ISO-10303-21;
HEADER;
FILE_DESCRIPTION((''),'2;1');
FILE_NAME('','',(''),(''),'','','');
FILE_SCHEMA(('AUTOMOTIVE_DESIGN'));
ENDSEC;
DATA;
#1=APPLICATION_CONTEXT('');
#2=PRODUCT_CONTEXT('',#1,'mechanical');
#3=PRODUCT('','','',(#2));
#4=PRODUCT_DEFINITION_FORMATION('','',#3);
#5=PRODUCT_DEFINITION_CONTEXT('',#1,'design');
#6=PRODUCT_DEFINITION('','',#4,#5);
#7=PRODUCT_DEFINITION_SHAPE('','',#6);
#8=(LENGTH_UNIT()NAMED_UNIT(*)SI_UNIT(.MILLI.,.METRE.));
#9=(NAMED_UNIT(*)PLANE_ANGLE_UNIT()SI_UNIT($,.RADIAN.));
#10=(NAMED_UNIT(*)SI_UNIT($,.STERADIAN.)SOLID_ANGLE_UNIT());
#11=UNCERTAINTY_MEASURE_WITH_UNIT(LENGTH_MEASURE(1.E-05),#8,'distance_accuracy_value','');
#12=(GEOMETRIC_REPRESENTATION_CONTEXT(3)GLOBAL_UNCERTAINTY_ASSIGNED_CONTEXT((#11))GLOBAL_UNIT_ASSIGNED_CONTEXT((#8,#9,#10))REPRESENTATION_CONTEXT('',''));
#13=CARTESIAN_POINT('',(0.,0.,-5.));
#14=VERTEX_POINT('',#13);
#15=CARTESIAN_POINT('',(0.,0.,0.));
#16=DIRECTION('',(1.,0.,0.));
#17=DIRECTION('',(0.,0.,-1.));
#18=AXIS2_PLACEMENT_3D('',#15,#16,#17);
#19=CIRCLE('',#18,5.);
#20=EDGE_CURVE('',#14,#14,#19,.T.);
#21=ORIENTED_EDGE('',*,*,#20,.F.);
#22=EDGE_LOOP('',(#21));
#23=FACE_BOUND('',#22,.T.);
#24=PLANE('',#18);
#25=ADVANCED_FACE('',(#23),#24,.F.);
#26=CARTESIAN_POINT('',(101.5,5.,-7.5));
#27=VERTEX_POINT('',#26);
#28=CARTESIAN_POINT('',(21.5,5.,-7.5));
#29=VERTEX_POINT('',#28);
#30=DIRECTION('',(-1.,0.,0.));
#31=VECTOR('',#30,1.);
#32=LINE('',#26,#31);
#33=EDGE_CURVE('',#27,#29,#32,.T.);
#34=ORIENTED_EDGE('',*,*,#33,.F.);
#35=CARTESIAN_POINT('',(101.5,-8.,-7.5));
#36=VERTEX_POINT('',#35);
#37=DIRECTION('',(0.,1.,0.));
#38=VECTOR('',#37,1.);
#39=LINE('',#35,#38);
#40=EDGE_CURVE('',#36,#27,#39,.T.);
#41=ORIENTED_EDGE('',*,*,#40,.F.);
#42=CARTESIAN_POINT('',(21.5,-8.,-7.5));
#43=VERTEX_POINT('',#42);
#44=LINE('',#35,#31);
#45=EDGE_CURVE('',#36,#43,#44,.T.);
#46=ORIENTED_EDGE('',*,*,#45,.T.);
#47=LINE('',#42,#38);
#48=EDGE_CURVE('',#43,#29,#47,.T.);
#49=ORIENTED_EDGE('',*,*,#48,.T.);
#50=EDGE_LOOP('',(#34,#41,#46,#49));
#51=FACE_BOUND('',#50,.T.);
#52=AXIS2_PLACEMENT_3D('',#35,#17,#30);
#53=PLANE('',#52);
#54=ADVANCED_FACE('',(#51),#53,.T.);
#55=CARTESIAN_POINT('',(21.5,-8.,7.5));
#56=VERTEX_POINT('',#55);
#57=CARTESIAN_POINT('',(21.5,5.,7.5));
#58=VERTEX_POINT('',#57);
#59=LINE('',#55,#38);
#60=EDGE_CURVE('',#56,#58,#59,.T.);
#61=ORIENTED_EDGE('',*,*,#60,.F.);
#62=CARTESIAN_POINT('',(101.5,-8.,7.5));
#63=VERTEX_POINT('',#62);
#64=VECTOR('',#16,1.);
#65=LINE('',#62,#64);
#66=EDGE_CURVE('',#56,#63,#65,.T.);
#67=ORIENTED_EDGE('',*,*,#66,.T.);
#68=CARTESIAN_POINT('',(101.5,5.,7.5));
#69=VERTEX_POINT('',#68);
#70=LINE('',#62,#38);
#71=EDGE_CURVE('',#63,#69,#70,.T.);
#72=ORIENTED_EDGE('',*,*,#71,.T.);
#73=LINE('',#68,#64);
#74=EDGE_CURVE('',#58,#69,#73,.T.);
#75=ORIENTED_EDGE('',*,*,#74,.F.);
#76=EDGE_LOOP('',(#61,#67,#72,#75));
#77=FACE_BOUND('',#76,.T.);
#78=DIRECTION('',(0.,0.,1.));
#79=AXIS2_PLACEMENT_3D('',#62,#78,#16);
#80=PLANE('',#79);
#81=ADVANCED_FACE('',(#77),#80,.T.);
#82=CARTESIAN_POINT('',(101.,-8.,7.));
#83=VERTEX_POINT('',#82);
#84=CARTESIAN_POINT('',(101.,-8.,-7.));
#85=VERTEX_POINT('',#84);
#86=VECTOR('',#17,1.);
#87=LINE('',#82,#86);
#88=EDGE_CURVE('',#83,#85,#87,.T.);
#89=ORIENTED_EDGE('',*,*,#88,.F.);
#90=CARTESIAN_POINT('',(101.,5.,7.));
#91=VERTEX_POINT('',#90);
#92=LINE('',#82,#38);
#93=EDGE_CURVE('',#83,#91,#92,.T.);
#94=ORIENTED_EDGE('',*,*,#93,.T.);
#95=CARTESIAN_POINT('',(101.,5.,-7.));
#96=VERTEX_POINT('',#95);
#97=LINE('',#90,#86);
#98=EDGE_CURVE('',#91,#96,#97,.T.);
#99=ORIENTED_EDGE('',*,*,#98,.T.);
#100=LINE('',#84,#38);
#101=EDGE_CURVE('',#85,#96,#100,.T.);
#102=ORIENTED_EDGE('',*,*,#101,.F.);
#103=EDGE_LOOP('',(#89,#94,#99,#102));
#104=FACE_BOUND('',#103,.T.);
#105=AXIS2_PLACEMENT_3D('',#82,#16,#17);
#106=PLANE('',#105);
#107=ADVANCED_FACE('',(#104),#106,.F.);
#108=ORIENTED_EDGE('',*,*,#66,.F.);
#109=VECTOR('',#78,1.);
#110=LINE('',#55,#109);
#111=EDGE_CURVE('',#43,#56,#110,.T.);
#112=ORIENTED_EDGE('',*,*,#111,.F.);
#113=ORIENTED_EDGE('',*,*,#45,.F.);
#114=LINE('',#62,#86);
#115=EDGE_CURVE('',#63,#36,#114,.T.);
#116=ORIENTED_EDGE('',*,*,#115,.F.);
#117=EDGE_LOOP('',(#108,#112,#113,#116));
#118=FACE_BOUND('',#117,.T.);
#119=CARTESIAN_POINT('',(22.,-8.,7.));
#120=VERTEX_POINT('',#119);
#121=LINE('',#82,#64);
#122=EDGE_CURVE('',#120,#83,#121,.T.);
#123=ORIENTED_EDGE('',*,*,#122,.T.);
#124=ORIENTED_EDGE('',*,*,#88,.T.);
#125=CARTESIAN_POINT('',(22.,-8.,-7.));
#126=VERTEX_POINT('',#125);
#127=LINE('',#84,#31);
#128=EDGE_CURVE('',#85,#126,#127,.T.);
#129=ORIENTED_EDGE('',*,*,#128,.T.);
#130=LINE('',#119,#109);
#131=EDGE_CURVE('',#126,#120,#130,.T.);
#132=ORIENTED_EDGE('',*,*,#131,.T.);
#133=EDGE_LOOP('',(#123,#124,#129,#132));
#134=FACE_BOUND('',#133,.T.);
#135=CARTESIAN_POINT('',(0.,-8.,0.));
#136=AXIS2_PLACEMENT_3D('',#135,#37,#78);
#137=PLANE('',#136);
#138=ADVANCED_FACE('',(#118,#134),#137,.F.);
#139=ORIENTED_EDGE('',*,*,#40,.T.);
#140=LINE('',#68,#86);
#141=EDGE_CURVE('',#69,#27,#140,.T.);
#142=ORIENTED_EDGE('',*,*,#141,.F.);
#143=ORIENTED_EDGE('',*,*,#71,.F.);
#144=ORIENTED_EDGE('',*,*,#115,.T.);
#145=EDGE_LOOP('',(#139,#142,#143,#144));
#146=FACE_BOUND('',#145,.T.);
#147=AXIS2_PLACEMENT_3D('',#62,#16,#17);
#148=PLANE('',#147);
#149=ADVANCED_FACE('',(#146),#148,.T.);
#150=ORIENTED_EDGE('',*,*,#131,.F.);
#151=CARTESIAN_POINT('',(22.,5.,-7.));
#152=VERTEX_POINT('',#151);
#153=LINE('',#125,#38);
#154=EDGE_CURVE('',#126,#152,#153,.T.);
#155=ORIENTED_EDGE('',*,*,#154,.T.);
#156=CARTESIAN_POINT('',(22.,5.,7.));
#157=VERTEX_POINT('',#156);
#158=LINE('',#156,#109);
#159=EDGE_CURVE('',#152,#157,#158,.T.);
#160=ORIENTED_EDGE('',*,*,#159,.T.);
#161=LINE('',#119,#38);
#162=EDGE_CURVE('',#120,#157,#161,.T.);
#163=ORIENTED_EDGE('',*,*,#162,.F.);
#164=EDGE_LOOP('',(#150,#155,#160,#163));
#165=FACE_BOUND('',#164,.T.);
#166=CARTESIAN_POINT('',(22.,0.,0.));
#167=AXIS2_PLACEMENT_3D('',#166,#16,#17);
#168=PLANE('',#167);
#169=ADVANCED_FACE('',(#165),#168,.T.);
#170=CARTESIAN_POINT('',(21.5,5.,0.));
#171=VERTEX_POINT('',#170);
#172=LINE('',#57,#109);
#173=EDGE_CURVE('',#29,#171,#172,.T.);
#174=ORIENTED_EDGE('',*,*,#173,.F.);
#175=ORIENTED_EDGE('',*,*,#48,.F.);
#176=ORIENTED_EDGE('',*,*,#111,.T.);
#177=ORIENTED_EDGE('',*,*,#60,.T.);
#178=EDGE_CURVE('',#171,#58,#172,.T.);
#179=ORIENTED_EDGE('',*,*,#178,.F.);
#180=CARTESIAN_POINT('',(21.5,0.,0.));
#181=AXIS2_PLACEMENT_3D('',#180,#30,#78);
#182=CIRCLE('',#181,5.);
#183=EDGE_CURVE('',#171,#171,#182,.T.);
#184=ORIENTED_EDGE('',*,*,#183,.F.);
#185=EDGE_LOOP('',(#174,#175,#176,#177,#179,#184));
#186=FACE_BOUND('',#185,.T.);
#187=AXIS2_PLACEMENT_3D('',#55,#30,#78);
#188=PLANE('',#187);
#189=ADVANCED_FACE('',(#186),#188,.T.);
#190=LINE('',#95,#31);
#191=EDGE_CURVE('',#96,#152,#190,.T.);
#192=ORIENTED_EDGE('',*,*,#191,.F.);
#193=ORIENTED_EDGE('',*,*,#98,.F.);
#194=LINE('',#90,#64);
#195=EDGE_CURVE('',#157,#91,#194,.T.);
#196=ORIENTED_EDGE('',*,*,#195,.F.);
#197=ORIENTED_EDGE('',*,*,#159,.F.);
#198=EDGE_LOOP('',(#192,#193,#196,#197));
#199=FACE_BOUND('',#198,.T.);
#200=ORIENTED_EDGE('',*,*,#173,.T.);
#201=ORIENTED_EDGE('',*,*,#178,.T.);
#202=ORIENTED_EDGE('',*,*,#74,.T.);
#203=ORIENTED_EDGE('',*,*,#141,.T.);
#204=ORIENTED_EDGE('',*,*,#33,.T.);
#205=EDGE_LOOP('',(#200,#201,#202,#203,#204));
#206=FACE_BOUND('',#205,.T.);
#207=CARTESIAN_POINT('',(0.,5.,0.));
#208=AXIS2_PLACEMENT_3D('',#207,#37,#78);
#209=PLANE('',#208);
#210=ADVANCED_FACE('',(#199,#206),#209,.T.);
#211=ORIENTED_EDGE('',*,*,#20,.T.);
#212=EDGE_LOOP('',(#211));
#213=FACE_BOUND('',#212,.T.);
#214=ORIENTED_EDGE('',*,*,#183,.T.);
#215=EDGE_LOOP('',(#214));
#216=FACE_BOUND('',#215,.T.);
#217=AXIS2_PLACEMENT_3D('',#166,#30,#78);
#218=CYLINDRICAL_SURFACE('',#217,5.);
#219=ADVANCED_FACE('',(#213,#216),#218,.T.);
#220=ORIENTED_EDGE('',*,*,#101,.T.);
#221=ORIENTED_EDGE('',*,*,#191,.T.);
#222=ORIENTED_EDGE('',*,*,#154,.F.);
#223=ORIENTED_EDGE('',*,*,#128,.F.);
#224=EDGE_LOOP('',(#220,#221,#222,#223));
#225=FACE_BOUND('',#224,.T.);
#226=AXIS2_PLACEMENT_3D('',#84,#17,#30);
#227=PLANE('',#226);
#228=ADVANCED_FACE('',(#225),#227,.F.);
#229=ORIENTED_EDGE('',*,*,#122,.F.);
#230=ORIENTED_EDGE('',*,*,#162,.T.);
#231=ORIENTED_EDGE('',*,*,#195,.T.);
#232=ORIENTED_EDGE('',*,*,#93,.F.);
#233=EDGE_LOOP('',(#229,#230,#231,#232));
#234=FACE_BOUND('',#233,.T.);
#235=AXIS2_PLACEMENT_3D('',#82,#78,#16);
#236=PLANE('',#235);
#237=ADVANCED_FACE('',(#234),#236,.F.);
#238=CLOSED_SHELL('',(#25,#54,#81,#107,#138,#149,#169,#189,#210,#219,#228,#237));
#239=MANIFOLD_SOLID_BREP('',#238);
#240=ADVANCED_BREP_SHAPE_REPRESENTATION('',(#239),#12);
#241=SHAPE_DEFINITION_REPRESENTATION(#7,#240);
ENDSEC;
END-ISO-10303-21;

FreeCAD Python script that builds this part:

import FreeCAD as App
import Part
import Sketcher
from FreeCAD import Vector


def add_polygon(sketch, points):
    """Adds a closed chain of lines whose ends are joined by coincident constraints."""
    first, n = sketch.GeometryCount, len(points)
    for a, b in zip(points, points[1:] + points[:1]):
        sketch.addGeometry(Part.LineSegment(App.Vector(*a, 0), App.Vector(*b, 0)), False)
    for i in range(n):
        sketch.addConstraint(Sketcher.Constraint("Coincident", first + i, 2, first + (i + 1) % n, 1))

doc = App.newDocument("Part")
body = doc.addObject("PartDesign::Body", "Body")

# Sketch on YZ plane
sketch1 = doc.addObject("Sketcher::SketchObject", "Sketch")
body.addObject(sketch1)
sketch1.AttachmentSupport = (doc.YZ_Plane, [""])
sketch1.MapMode = "FlatFace"
sketch1.addGeometry(Part.Circle(Vector(0, 0, 0), Vector(0, 0, 1), 5), False)
sketch1.addConstraint(Sketcher.Constraint("Coincident", 0, 3, -1, 1))
sketch1.addConstraint(Sketcher.Constraint("Diameter", 0, 10.0))
pad1 = doc.addObject("PartDesign::Pad", "Pad")
body.addObject(pad1)
pad1.Profile = sketch1
pad1.Length = 22

# Sketch on XZ plane
sketch2 = doc.addObject("Sketcher::SketchObject", "Sketch001")
body.addObject(sketch2)
sketch2.AttachmentSupport = (doc.XZ_Plane, [""])
sketch2.MapMode = "FlatFace"
add_polygon(sketch2, [(21.5, -7.5), (21.5, 7.5), (101.5, 7.5), (101.5, -7.5)])  # lines 0-3
add_polygon(sketch2, [(101, 7), (22, 7), (22, -7), (101, -7)])  # lines 4-7
sketch2.addConstraint(Sketcher.Constraint("Vertical", 0))
sketch2.addConstraint(Sketcher.Constraint("Horizontal", 1))
sketch2.addConstraint(Sketcher.Constraint("Vertical", 2))
sketch2.addConstraint(Sketcher.Constraint("Horizontal", 3))
sketch2.addConstraint(Sketcher.Constraint("Horizontal", 4))
sketch2.addConstraint(Sketcher.Constraint("Vertical", 5))
sketch2.addConstraint(Sketcher.Constraint("Horizontal", 6))
sketch2.addConstraint(Sketcher.Constraint("Vertical", 7))
sketch2.addConstraint(Sketcher.Constraint("DistanceX", 1, 1, 1, 2, 80.0))
sketch2.addConstraint(Sketcher.Constraint("DistanceX", 4, 2, 4, 1, 79.0))
sketch2.addConstraint(Sketcher.Constraint("DistanceY", 0, 1, 0, 2, 15.0))
sketch2.addConstraint(Sketcher.Constraint("DistanceY", 5, 2, 5, 1, 14.0))
sketch2.addConstraint(Sketcher.Constraint("DistanceX", -1, 1, 4, 2, 22.0))
sketch2.addConstraint(Sketcher.Constraint("DistanceY", -1, 1, 4, 2, 7.0))
sketch2.addConstraint(Sketcher.Constraint("DistanceX", -1, 1, 0, 2, 21.5))
sketch2.addConstraint(Sketcher.Constraint("DistanceY", -1, 1, 0, 2, 7.5))
pad2 = doc.addObject("PartDesign::Pad", "Pad001")
body.addObject(pad2)
pad2.Profile = sketch2
pad2.Type = "TwoLengths"
pad2.Length = 5
pad2.Length2 = 8
pad2.Reversed = True

doc.recompute()
